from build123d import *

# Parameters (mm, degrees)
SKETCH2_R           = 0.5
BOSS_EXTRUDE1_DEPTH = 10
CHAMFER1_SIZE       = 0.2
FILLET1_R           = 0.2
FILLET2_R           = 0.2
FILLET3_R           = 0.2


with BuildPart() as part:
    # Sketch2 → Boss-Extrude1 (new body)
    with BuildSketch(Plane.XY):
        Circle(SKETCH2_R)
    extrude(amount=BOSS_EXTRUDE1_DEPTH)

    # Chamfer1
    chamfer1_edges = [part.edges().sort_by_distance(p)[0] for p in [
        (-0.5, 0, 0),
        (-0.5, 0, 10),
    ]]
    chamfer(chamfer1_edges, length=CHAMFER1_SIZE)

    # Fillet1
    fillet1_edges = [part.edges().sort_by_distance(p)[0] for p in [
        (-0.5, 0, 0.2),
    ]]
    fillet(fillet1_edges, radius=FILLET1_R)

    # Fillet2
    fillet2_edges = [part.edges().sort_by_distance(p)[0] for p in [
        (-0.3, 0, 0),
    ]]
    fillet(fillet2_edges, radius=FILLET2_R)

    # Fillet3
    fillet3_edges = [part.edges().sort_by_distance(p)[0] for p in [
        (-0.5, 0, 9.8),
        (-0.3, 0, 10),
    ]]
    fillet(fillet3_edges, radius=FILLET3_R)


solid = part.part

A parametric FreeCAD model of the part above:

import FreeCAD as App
import Part
import Sketcher

V = App.Vector
Q = App.Units.Quantity


def edges_at(feature, points):
    """Names of the edges that pass closest to the given points."""
    edges = feature.Shape.Edges
    near = lambda p: min(range(len(edges)), key=lambda i: edges[i].distToShape(Part.Vertex(*p))[0])
    return sorted({f"Edge{near(p) + 1}" for p in points})

doc = App.newDocument("Part")
params = doc.addObject("Spreadsheet::Sheet", "Params")
for row, (alias, value) in enumerate([
    ("sketch1_diameter", "1 mm"),
    ("pad1_length", "10 mm"),
    ("chamfer_size", "0.2 mm"),
    ("fillet_radius", "0.2 mm"),
    ("fillet2_radius", "0.2 mm"),
    ("fillet3_radius", "0.2 mm"),
], start=1):
    params.set(f"A{row}", alias)
    params.set(f"B{row}", "=" + value)
    params.setAlias(f"B{row}", alias)

body = doc.addObject("PartDesign::Body", "Body")

# Sketch on XY plane
sketch1 = body.newObject("Sketcher::SketchObject", "Sketch")
sketch1.AttachmentSupport = (doc.getObject("XY_Plane"), [""])
sketch1.MapMode = "FlatFace"
sketch1.addGeometry(Part.Circle(V(0, 0, 0), V(0, 0, 1), 0.5), False)
sketch1.addConstraint(Sketcher.Constraint("Coincident", 0, 3, -1, 1))
sketch1.addConstraint(Sketcher.Constraint("Diameter", 0, Q("1 mm")))
sketch1.setExpression("Constraints[1]", "Params.sketch1_diameter")
pad1 = body.newObject("PartDesign::Pad", "Pad")
pad1.Profile = sketch1
pad1.setExpression("Length", "Params.pad1_length")
doc.recompute()

chamfer = body.newObject("PartDesign::Chamfer", "Chamfer")
chamfer.Base = (pad1, edges_at(pad1, [(-0.5, 0, 0), (-0.5, 0, 10)]))
chamfer.setExpression("Size", "Params.chamfer_size")
doc.recompute()

fillet = body.newObject("PartDesign::Fillet", "Fillet")
fillet.Base = (chamfer, edges_at(chamfer, [(-0.5, 0, 0.2)]))
fillet.setExpression("Radius", "Params.fillet_radius")
doc.recompute()

fillet2 = body.newObject("PartDesign::Fillet", "Fillet001")
fillet2.Base = (fillet, edges_at(fillet, [(-0.3, 0, 0)]))
fillet2.setExpression("Radius", "Params.fillet2_radius")
doc.recompute()

fillet3 = body.newObject("PartDesign::Fillet", "Fillet002")
fillet3.Base = (fillet2, edges_at(fillet2, [(-0.5, 0, 9.8), (-0.3, 0, 10)]))
fillet3.setExpression("Radius", "Params.fillet3_radius")

doc.recompute()
